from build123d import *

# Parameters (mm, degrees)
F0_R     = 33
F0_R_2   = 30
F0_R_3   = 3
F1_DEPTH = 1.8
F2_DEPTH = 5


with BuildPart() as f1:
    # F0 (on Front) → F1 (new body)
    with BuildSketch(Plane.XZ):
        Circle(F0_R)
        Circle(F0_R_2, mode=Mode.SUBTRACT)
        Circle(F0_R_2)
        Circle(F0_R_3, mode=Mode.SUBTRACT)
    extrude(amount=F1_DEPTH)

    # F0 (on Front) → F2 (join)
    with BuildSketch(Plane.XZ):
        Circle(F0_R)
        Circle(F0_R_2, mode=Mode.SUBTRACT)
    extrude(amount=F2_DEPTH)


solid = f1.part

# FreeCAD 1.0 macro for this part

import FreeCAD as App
import Part
import Sketcher

doc = App.newDocument("Part")
body = doc.addObject("PartDesign::Body", "Body")

# Sketch on XZ plane
sketch1 = doc.addObject("Sketcher::SketchObject", "Sketch")
body.addObject(sketch1)
sketch1.AttachmentSupport = (doc.XZ_Plane, [""])
sketch1.MapMode = "FlatFace"
sketch1.addGeometry([
    Part.Circle(App.Vector(0, 0, 0), App.Vector(0, 0, 1), 33),
    Part.Circle(App.Vector(0, 0, 0), App.Vector(0, 0, 1), 3),
], False)
sketch1.addConstraint([
    Sketcher.Constraint("Coincident", 0, 3, -1, 1),
    Sketcher.Constraint("Coincident", 1, 3, -1, 1),
    Sketcher.Constraint("Diameter", 0, 66.0),
    Sketcher.Constraint("Diameter", 1, 6.0),
])
pad1 = doc.addObject("PartDesign::Pad", "Pad")
body.addObject(pad1)
pad1.Profile = sketch1
pad1.Length = 1.8

# Sketch on XZ plane
sketch2 = doc.addObject("Sketcher::SketchObject", "Sketch001")
body.addObject(sketch2)
sketch2.AttachmentSupport = (doc.XZ_Plane, [""])
sketch2.MapMode = "FlatFace"
sketch2.addGeometry([
    Part.Circle(App.Vector(0, 0, 0), App.Vector(0, 0, 1), 33),
    Part.Circle(App.Vector(0, 0, 0), App.Vector(0, 0, 1), 30),
], False)
sketch2.addConstraint([
    Sketcher.Constraint("Coincident", 0, 3, -1, 1),
    Sketcher.Constraint("Coincident", 1, 3, -1, 1),
    Sketcher.Constraint("Diameter", 0, 66.0),
    Sketcher.Constraint("Diameter", 1, 60.0),
])
pad2 = doc.addObject("PartDesign::Pad", "Pad001")
body.addObject(pad2)
pad2.Profile = sketch2
pad2.Length = 5

doc.recompute()
